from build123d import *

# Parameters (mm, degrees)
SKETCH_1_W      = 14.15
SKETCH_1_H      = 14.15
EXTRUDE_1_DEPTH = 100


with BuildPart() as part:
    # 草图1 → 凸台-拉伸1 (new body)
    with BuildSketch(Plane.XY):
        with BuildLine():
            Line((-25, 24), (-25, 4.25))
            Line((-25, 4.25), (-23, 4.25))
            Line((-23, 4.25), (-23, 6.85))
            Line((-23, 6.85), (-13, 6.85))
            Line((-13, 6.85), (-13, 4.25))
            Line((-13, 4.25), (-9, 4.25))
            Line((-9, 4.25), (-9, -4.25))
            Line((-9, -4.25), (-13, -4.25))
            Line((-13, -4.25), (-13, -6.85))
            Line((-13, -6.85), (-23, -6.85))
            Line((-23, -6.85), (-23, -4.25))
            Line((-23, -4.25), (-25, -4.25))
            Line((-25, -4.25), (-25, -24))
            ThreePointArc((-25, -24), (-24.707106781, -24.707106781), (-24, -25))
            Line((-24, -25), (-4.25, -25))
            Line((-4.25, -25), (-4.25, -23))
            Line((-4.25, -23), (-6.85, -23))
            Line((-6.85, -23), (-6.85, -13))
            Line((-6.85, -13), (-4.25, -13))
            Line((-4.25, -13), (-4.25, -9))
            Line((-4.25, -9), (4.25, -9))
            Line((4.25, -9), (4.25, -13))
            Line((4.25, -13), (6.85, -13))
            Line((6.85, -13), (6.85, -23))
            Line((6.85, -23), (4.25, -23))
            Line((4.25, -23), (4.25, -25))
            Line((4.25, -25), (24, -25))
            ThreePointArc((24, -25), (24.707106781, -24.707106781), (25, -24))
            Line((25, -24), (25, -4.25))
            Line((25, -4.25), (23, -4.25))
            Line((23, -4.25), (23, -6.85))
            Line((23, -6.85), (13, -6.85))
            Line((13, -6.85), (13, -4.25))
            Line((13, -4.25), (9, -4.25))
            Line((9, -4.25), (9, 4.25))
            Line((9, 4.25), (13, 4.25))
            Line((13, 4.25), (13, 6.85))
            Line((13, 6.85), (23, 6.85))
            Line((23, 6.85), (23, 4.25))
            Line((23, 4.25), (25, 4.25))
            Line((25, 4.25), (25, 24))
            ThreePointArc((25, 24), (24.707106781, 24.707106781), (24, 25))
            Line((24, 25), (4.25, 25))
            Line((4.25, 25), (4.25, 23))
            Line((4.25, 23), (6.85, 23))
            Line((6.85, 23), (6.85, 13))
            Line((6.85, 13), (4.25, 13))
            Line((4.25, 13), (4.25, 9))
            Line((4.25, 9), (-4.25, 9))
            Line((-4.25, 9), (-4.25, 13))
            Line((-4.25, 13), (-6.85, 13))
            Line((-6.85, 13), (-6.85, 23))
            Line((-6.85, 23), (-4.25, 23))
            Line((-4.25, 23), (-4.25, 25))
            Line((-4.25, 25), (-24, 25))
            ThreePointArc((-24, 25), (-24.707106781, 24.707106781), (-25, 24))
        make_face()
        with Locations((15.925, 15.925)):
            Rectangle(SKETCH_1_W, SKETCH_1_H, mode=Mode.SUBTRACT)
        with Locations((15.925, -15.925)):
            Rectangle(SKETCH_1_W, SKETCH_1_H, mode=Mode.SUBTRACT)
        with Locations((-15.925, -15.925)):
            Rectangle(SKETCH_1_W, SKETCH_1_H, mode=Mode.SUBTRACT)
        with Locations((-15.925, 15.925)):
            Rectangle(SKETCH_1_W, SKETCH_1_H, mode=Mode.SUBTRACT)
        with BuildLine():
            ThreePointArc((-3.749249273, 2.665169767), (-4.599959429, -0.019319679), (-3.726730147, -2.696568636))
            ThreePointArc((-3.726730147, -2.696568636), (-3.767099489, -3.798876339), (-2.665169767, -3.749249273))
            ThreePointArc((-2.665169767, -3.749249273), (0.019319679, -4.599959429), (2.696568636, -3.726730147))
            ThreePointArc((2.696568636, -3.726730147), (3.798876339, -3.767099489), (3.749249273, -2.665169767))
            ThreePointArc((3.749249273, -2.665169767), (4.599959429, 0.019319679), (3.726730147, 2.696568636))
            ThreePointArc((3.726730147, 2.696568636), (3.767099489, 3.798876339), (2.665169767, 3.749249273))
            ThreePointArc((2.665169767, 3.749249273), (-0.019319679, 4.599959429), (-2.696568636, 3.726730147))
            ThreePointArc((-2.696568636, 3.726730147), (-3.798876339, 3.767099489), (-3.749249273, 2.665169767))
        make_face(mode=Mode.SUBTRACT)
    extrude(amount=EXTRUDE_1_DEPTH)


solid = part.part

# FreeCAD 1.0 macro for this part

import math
import FreeCAD as App
import Part
import Sketcher

V = App.Vector


def add_polygon(sketch, points):
    """Adds a closed chain of lines whose ends are joined by coincident constraints."""
    first, n = sketch.GeometryCount, len(points)
    for a, b in zip(points, points[1:] + points[:1]):
        sketch.addGeometry(Part.LineSegment(App.Vector(*a, 0), App.Vector(*b, 0)), False)
    for i in range(n):
        sketch.addConstraint(Sketcher.Constraint("Coincident", first + i, 2, first + (i + 1) % n, 1))

doc = App.newDocument("Part")
body = doc.addObject("PartDesign::Body", "Body")

sketch1 = body.newObject("Sketcher::SketchObject", "Sketch")
sketch1.AttachmentSupport = (doc.getObject("XY_Plane"), [""])
sketch1.MapMode = "FlatFace"
sketch1.addGeometry(Part.LineSegment(V(-25, 24, 0), V(-25, 4.25, 0)), False)
sketch1.addGeometry(Part.LineSegment(V(-25, 4.25, 0), V(-23, 4.25, 0)), False)
sketch1.addGeometry(Part.LineSegment(V(-23, 4.25, 0), V(-23, 6.85, 0)), False)
sketch1.addGeometry(Part.LineSegment(V(-23, 6.85, 0), V(-13, 6.85, 0)), False)
sketch1.addGeometry(Part.LineSegment(V(-13, 6.85, 0), V(-13, 4.25, 0)), False)
sketch1.addGeometry(Part.LineSegment(V(-13, 4.25, 0), V(-9, 4.25, 0)), False)
sketch1.addGeometry(Part.LineSegment(V(-9, 4.25, 0), V(-9, -4.25, 0)), False)
sketch1.addGeometry(Part.LineSegment(V(-9, -4.25, 0), V(-13, -4.25, 0)), False)
sketch1.addGeometry(Part.LineSegment(V(-13, -4.25, 0), V(-13, -6.85, 0)), False)
sketch1.addGeometry(Part.LineSegment(V(-13, -6.85, 0), V(-23, -6.85, 0)), False)
sketch1.addGeometry(Part.LineSegment(V(-23, -6.85, 0), V(-23, -4.25, 0)), False)
sketch1.addGeometry(Part.LineSegment(V(-23, -4.25, 0), V(-25, -4.25, 0)), False)
sketch1.addGeometry(Part.LineSegment(V(-25, -4.25, 0), V(-25, -24, 0)), False)
sketch1.addGeometry(Part.ArcOfCircle(Part.Circle(V(-24, -24, 0), V(0, 0, 1), 1), math.radians(-180), math.radians(-90)), False)
sketch1.addGeometry(Part.LineSegment(V(-24, -25, 0), V(-4.25, -25, 0)), False)
sketch1.addGeometry(Part.LineSegment(V(-4.25, -25, 0), V(-4.25, -23, 0)), False)
sketch1.addGeometry(Part.LineSegment(V(-4.25, -23, 0), V(-6.85, -23, 0)), False)
sketch1.addGeometry(Part.LineSegment(V(-6.85, -23, 0), V(-6.85, -13, 0)), False)
sketch1.addGeometry(Part.LineSegment(V(-6.85, -13, 0), V(-4.25, -13, 0)), False)
sketch1.addGeometry(Part.LineSegment(V(-4.25, -13, 0), V(-4.25, -9, 0)), False)
sketch1.addGeometry(Part.LineSegment(V(-4.25, -9, 0), V(4.25, -9, 0)), False)
sketch1.addGeometry(Part.LineSegment(V(4.25, -9, 0), V(4.25, -13, 0)), False)
sketch1.addGeometry(Part.LineSegment(V(4.25, -13, 0), V(6.85, -13, 0)), False)
sketch1.addGeometry(Part.LineSegment(V(6.85, -13, 0), V(6.85, -23, 0)), False)
sketch1.addGeometry(Part.LineSegment(V(6.85, -23, 0), V(4.25, -23, 0)), False)
sketch1.addGeometry(Part.LineSegment(V(4.25, -23, 0), V(4.25, -25, 0)), False)
sketch1.addGeometry(Part.LineSegment(V(4.25, -25, 0), V(24, -25, 0)), False)
sketch1.addGeometry(Part.ArcOfCircle(Part.Circle(V(24, -24, 0), V(0, 0, 1), 1), math.radians(-90), math.radians(0)), False)
sketch1.addGeometry(Part.LineSegment(V(25, -24, 0), V(25, -4.25, 0)), False)
sketch1.addGeometry(Part.LineSegment(V(25, -4.25, 0), V(23, -4.25, 0)), False)
sketch1.addGeometry(Part.LineSegment(V(23, -4.25, 0), V(23, -6.85, 0)), False)
sketch1.addGeometry(Part.LineSegment(V(23, -6.85, 0), V(13, -6.85, 0)), False)
sketch1.addGeometry(Part.LineSegment(V(13, -6.85, 0), V(13, -4.25, 0)), False)
sketch1.addGeometry(Part.LineSegment(V(13, -4.25, 0), V(9, -4.25, 0)), False)
sketch1.addGeometry(Part.LineSegment(V(9, -4.25, 0), V(9, 4.25, 0)), False)
sketch1.addGeometry(Part.LineSegment(V(9, 4.25, 0), V(13, 4.25, 0)), False)
sketch1.addGeometry(Part.LineSegment(V(13, 4.25, 0), V(13, 6.85, 0)), False)
sketch1.addGeometry(Part.LineSegment(V(13, 6.85, 0), V(23, 6.85, 0)), False)
sketch1.addGeometry(Part.LineSegment(V(23, 6.85, 0), V(23, 4.25, 0)), False)
sketch1.addGeometry(Part.LineSegment(V(23, 4.25, 0), V(25, 4.25, 0)), False)
sketch1.addGeometry(Part.LineSegment(V(25, 4.25, 0), V(25, 24, 0)), False)
sketch1.addGeometry(Part.ArcOfCircle(Part.Circle(V(24, 24, 0), V(0, 0, 1), 1), math.radians(0), math.radians(90)), False)
sketch1.addGeometry(Part.LineSegment(V(24, 25, 0), V(4.25, 25, 0)), False)
sketch1.addGeometry(Part.LineSegment(V(4.25, 25, 0), V(4.25, 23, 0)), False)
sketch1.addGeometry(Part.LineSegment(V(4.25, 23, 0), V(6.85, 23, 0)), False)
sketch1.addGeometry(Part.LineSegment(V(6.85, 23, 0), V(6.85, 13, 0)), False)
sketch1.addGeometry(Part.LineSegment(V(6.85, 13, 0), V(4.25, 13, 0)), False)
sketch1.addGeometry(Part.LineSegment(V(4.25, 13, 0), V(4.25, 9, 0)), False)
sketch1.addGeometry(Part.LineSegment(V(4.25, 9, 0), V(-4.25, 9, 0)), False)
sketch1.addGeometry(Part.LineSegment(V(-4.25, 9, 0), V(-4.25, 13, 0)), False)
sketch1.addGeometry(Part.LineSegment(V(-4.25, 13, 0), V(-6.85, 13, 0)), False)
sketch1.addGeometry(Part.LineSegment(V(-6.85, 13, 0), V(-6.85, 23, 0)), False)
sketch1.addGeometry(Part.LineSegment(V(-6.85, 23, 0), V(-4.25, 23, 0)), False)
sketch1.addGeometry(Part.LineSegment(V(-4.25, 23, 0), V(-4.25, 25, 0)), False)
sketch1.addGeometry(Part.LineSegment(V(-4.25, 25, 0), V(-24, 25, 0)), False)
sketch1.addGeometry(Part.ArcOfCircle(Part.Circle(V(-24, 24, 0), V(0, 0, 1), 1), math.radians(90), math.radians(180)), False)
add_polygon(sketch1, [(-8.85, -23), (-23, -23), (-23, -8.85), (-8.85, -8.85)])
add_polygon(sketch1, [(23, -23), (8.85, -23), (8.85, -8.85), (23, -8.85)])
add_polygon(sketch1, [(-8.85, 8.85), (-23, 8.85), (-23, 23), (-8.85, 23)])
sketch1.addGeometry(Part.ArcOfCircle(Part.Circle(V(0, 0, 0), V(0, 0, 1), 4.6), math.radians(144.59272), math.radians(215.888558)), False)
sketch1.addGeometry(Part.ArcOfCircle(Part.Circle(V(-3.266324, 3.239001, 0), V(0, 0, 1), 0.75), math.radians(40.564598), math.radians(229.91668)), False)
sketch1.addGeometry(Part.ArcOfCircle(Part.Circle(V(0, 0, 0), V(0, 0, 1), 4.6), math.radians(54.59272), math.radians(125.888558)), False)
sketch1.addGeometry(Part.ArcOfCircle(Part.Circle(V(3.239001, 3.266324, 0), V(0, 0, 1), 0.75), math.radians(-49.435402), math.radians(139.91668)), False)
sketch1.addGeometry(Part.ArcOfCircle(Part.Circle(V(0, 0, 0), V(0, 0, 1), 4.6), math.radians(-35.40728), math.radians(35.888558)), False)
sketch1.addGeometry(Part.ArcOfCircle(Part.Circle(V(3.266324, -3.239001, 0), V(0, 0, 1), 0.75), math.radians(-139.435402), math.radians(49.91668)), False)
sketch1.addGeometry(Part.ArcOfCircle(Part.Circle(V(0, 0, 0), V(0, 0, 1), 4.6), math.radians(-125.40728), math.radians(-54.111442)), False)
sketch1.addGeometry(Part.ArcOfCircle(Part.Circle(V(-3.239001, -3.266324, 0), V(0, 0, 1), 0.75), math.radians(130.564598), math.radians(319.91668)), False)
add_polygon(sketch1, [(23, 8.85), (8.85, 8.85), (8.85, 23), (23, 23)])
sketch1.addConstraint([
    Sketcher.Constraint("Coincident", 0, 2, 1, 1),
    Sketcher.Constraint("Coincident", 1, 2, 2, 1),
    Sketcher.Constraint("Coincident", 2, 2, 3, 1),
    Sketcher.Constraint("Coincident", 3, 2, 4, 1),
    Sketcher.Constraint("Coincident", 4, 2, 5, 1),
    Sketcher.Constraint("Coincident", 5, 2, 6, 1),
    Sketcher.Constraint("Coincident", 6, 2, 7, 1),
    Sketcher.Constraint("Coincident", 7, 2, 8, 1),
    Sketcher.Constraint("Coincident", 8, 2, 9, 1),
    Sketcher.Constraint("Coincident", 9, 2, 10, 1),
    Sketcher.Constraint("Coincident", 10, 2, 11, 1),
    Sketcher.Constraint("Coincident", 11, 2, 12, 1),
    Sketcher.Constraint("Tangent", 12, 2, 13, 1),
    Sketcher.Constraint("Tangent", 13, 2, 14, 1),
    Sketcher.Constraint("Coincident", 14, 2, 15, 1),
    Sketcher.Constraint("Coincident", 15, 2, 16, 1),
    Sketcher.Constraint("Coincident", 16, 2, 17, 1),
    Sketcher.Constraint("Coincident", 17, 2, 18, 1),
    Sketcher.Constraint("Coincident", 18, 2, 19, 1),
    Sketcher.Constraint("Coincident", 19, 2, 20, 1),
    Sketcher.Constraint("Coincident", 20, 2, 21, 1),
    Sketcher.Constraint("Coincident", 21, 2, 22, 1),
    Sketcher.Constraint("Coincident", 22, 2, 23, 1),
    Sketcher.Constraint("Coincident", 23, 2, 24, 1),
    Sketcher.Constraint("Coincident", 24, 2, 25, 1),
    Sketcher.Constraint("Coincident", 25, 2, 26, 1),
    Sketcher.Constraint("Tangent", 26, 2, 27, 1),
    Sketcher.Constraint("Tangent", 27, 2, 28, 1),
    Sketcher.Constraint("Coincident", 28, 2, 29, 1),
    Sketcher.Constraint("Coincident", 29, 2, 30, 1),
    Sketcher.Constraint("Coincident", 30, 2, 31, 1),
    Sketcher.Constraint("Coincident", 31, 2, 32, 1),
    Sketcher.Constraint("Coincident", 32, 2, 33, 1),
    Sketcher.Constraint("Coincident", 33, 2, 34, 1),
    Sketcher.Constraint("Coincident", 34, 2, 35, 1),
    Sketcher.Constraint("Coincident", 35, 2, 36, 1),
    Sketcher.Constraint("Coincident", 36, 2, 37, 1),
    Sketcher.Constraint("Coincident", 37, 2, 38, 1),
    Sketcher.Constraint("Coincident", 38, 2, 39, 1),
    Sketcher.Constraint("Coincident", 39, 2, 40, 1),
    Sketcher.Constraint("Tangent", 40, 2, 41, 1),
    Sketcher.Constraint("Tangent", 41, 2, 42, 1),
    Sketcher.Constraint("Coincident", 42, 2, 43, 1),
    Sketcher.Constraint("Coincident", 43, 2, 44, 1),
    Sketcher.Constraint("Coincident", 44, 2, 45, 1),
    Sketcher.Constraint("Coincident", 45, 2, 46, 1),
    Sketcher.Constraint("Coincident", 46, 2, 47, 1),
    Sketcher.Constraint("Coincident", 47, 2, 48, 1),
    Sketcher.Constraint("Coincident", 48, 2, 49, 1),
    Sketcher.Constraint("Coincident", 49, 2, 50, 1),
    Sketcher.Constraint("Coincident", 50, 2, 51, 1),
    Sketcher.Constraint("Coincident", 51, 2, 52, 1),
    Sketcher.Constraint("Coincident", 52, 2, 53, 1),
    Sketcher.Constraint("Coincident", 53, 2, 54, 1),
    Sketcher.Constraint("Tangent", 54, 2, 55, 1),
    Sketcher.Constraint("Tangent", 55, 2, 0, 1),
    Sketcher.Constraint("Coincident", 68, 1, 69, 2),
    Sketcher.Constraint("Coincident", 69, 1, 70, 2),
    Sketcher.Constraint("Coincident", 70, 1, 71, 2),
    Sketcher.Constraint("Coincident", 71, 1, 72, 2),
    Sketcher.Constraint("Coincident", 72, 1, 73, 2),
    Sketcher.Constraint("Coincident", 73, 1, 74, 2),
    Sketcher.Constraint("Coincident", 74, 1, 75, 2),
    Sketcher.Constraint("Coincident", 75, 1, 68, 2),
    Sketcher.Constraint("Vertical", 0),
    Sketcher.Constraint("Horizontal", 1),
    Sketcher.Constraint("Vertical", 2),
    Sketcher.Constraint("Horizontal", 3),
    Sketcher.Constraint("Vertical", 4),
    Sketcher.Constraint("Horizontal", 5),
    Sketcher.Constraint("Vertical", 6),
    Sketcher.Constraint("Horizontal", 7),
    Sketcher.Constraint("Vertical", 8),
    Sketcher.Constraint("Horizontal", 9),
    Sketcher.Constraint("Vertical", 10),
    Sketcher.Constraint("Horizontal", 11),
    Sketcher.Constraint("Vertical", 12),
    Sketcher.Constraint("Horizontal", 14),
    Sketcher.Constraint("Vertical", 15),
    Sketcher.Constraint("Horizontal", 16),
    Sketcher.Constraint("Vertical", 17),
    Sketcher.Constraint("Horizontal", 18),
    Sketcher.Constraint("Vertical", 19),
    Sketcher.Constraint("Horizontal", 20),
    Sketcher.Constraint("Vertical", 21),
    Sketcher.Constraint("Horizontal", 22),
    Sketcher.Constraint("Vertical", 23),
    Sketcher.Constraint("Horizontal", 24),
    Sketcher.Constraint("Vertical", 25),
    Sketcher.Constraint("Horizontal", 26),
    Sketcher.Constraint("Vertical", 28),
    Sketcher.Constraint("Horizontal", 29),
    Sketcher.Constraint("Vertical", 30),
    Sketcher.Constraint("Horizontal", 31),
    Sketcher.Constraint("Vertical", 32),
    Sketcher.Constraint("Horizontal", 33),
    Sketcher.Constraint("Vertical", 34),
    Sketcher.Constraint("Horizontal", 35),
    Sketcher.Constraint("Vertical", 36),
    Sketcher.Constraint("Horizontal", 37),
    Sketcher.Constraint("Vertical", 38),
    Sketcher.Constraint("Horizontal", 39),
    Sketcher.Constraint("Vertical", 40),
    Sketcher.Constraint("Horizontal", 42),
    Sketcher.Constraint("Vertical", 43),
    Sketcher.Constraint("Horizontal", 44),
    Sketcher.Constraint("Vertical", 45),
    Sketcher.Constraint("Horizontal", 46),
    Sketcher.Constraint("Vertical", 47),
    Sketcher.Constraint("Horizontal", 48),
    Sketcher.Constraint("Vertical", 49),
    Sketcher.Constraint("Horizontal", 50),
    Sketcher.Constraint("Vertical", 51),
    Sketcher.Constraint("Horizontal", 52),
    Sketcher.Constraint("Vertical", 53),
    Sketcher.Constraint("Horizontal", 54),
    Sketcher.Constraint("Horizontal", 56),
    Sketcher.Constraint("Vertical", 57),
    Sketcher.Constraint("Horizontal", 58),
    Sketcher.Constraint("Vertical", 59),
    Sketcher.Constraint("Horizontal", 60),
    Sketcher.Constraint("Vertical", 61),
    Sketcher.Constraint("Horizontal", 62),
    Sketcher.Constraint("Vertical", 63),
    Sketcher.Constraint("Horizontal", 64),
    Sketcher.Constraint("Vertical", 65),
    Sketcher.Constraint("Horizontal", 66),
    Sketcher.Constraint("Vertical", 67),
    Sketcher.Constraint("Horizontal", 76),
    Sketcher.Constraint("Vertical", 77),
    Sketcher.Constraint("Horizontal", 78),
    Sketcher.Constraint("Vertical", 79),
    Sketcher.Constraint("Coincident", 68, 3, -1, 1),
    Sketcher.Constraint("Coincident", 70, 3, -1, 1),
    Sketcher.Constraint("Coincident", 72, 3, -1, 1),
    Sketcher.Constraint("Coincident", 74, 3, -1, 1),
    Sketcher.Constraint("Equal", 13, 27),
    Sketcher.Constraint("Equal", 27, 41),
    Sketcher.Constraint("Equal", 41, 55),
    Sketcher.Constraint("Equal", 68, 70),
    Sketcher.Constraint("Equal", 69, 71),
    Sketcher.Constraint("Equal", 70, 72),
    Sketcher.Constraint("Equal", 71, 73),
    Sketcher.Constraint("Equal", 72, 74),
    Sketcher.Constraint("Equal", 73, 75),
    Sketcher.Constraint("Symmetric", 13, 3, 41, 3, -1, 1),
    Sketcher.Constraint("Symmetric", 27, 3, 55, 3, -1, 1),
    Sketcher.Constraint("Symmetric", 69, 3, 73, 3, -1, 1),
    Sketcher.Constraint("Symmetric", 71, 3, 75, 3, -1, 1),
    Sketcher.Constraint("Symmetric", 1, 2, 29, 2, -1, 1),
    Sketcher.Constraint("Symmetric", 3, 2, 31, 2, -1, 1),
    Sketcher.Constraint("Symmetric", 5, 2, 33, 2, -1, 1),
    Sketcher.Constraint("Symmetric", 7, 2, 35, 2, -1, 1),
    Sketcher.Constraint("Symmetric", 9, 2, 37, 2, -1, 1),
    Sketcher.Constraint("Symmetric", 15, 2, 43, 2, -1, 1),
    Sketcher.Constraint("Symmetric", 17, 2, 45, 2, -1, 1),
    Sketcher.Constraint("Symmetric", 19, 2, 47, 2, -1, 1),
    Sketcher.Constraint("Symmetric", 21, 2, 49, 2, -1, 1),
    Sketcher.Constraint("Symmetric", 23, 2, 51, 2, -1, 1),
    Sketcher.Constraint("Symmetric", 62, 2, 64, 2, -1, 1),
    Sketcher.Constraint("Symmetric", 60, 2, 66, 2, -1, 1),
    Sketcher.Constraint("Symmetric", 58, 2, 76, 2, -1, 1),
    Sketcher.Constraint("Symmetric", 56, 2, 78, 2, -1, 1),
    Sketcher.Constraint("Symmetric", 13, 3, 27, 3, -2),
    Sketcher.Constraint("Symmetric", 18, 2, 21, 2, -2),
    Sketcher.Constraint("Symmetric", 16, 2, 23, 2, -2),
    Sketcher.Constraint("Symmetric", 10, 2, 29, 2, -2),
    Sketcher.Constraint("Symmetric", 8, 2, 31, 2, -2),
    Sketcher.Constraint("Symmetric", 59, 2, 60, 2, -2),
    Sketcher.Constraint("Symmetric", 57, 2, 62, 2, -2),
    Sketcher.Constraint("Horizontal", 1, 2, 4, 2),
    Sketcher.Constraint("Horizontal", 7, 2, 10, 2),
    Sketcher.Constraint("Horizontal", 35, 2, 38, 2),
    Sketcher.Constraint("Horizontal", 24, 2, 56, 2),
    Sketcher.Constraint("Vertical", 15, 2, 18, 2),
    Sketcher.Constraint("Vertical", 21, 2, 24, 2),
    Sketcher.Constraint("Vertical", 49, 2, 52, 2),
    Sketcher.Constraint("Vertical", 10, 2, 56, 2),
    Sketcher.Constraint("Equal", 54, 0),
    Sketcher.Constraint("Equal", 52, 2),
    Sketcher.Constraint("Equal", 48, 6),
    Sketcher.Constraint("Equal", 39, 15),
    Sketcher.Constraint("Equal", 37, 17),
    Sketcher.Constraint("Equal", 35, 19),
    Sketcher.Constraint("Equal", 78, 57),
    Sketcher.Constraint("Radius", 13, 1.0),
    Sketcher.Constraint("Radius", 68, 4.6),
    Sketcher.Constraint("DistanceX", 1, 1, 1, 2, 2.0),
    Sketcher.Constraint("DistanceX", 3, 1, 3, 2, 10.0),
    Sketcher.Constraint("DistanceX", 5, 1, 5, 2, 4.0),
    Sketcher.Constraint("Radius", 69, 0.75),
    Sketcher.Constraint("DistanceX", 16, 2, 16, 1, 2.6),
    Sketcher.Constraint("DistanceX", 20, 1, 20, 2, 8.5),
    Sketcher.Constraint("DistanceX", 13, 3, -1, 1, 24.0),
    Sketcher.Constraint("DistanceX", 56, 2, 56, 1, 14.15),
    Sketcher.Constraint("DistanceY", -1, 1, 69, 3, 3.239001),
    Sketcher.Constraint("DistanceX", -1, 1, 71, 3, 3.239001),
    Sketcher.Constraint("DistanceX", 68, 1, -1, 1, 3.749249),
    Sketcher.Constraint("DistanceX", -1, 1, 70, 1, 2.66517),
])
pad1 = body.newObject("PartDesign::Pad", "Pad")
pad1.Profile = sketch1
pad1.Length = 100

doc.recompute()
